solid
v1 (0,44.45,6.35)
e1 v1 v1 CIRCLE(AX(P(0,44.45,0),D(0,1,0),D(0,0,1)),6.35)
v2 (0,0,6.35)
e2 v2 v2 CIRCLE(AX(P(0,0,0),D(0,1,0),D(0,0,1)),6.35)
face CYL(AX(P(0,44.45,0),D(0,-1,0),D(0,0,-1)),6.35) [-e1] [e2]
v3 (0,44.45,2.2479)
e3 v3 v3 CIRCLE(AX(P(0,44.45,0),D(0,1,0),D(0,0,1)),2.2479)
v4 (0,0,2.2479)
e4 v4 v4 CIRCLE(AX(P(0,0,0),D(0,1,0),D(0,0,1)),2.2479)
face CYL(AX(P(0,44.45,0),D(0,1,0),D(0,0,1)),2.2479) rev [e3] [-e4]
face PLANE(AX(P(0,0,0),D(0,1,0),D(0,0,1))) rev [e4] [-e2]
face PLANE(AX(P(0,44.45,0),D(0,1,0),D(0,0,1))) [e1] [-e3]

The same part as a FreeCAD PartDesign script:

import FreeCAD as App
import Part
import Sketcher
from FreeCAD import Vector
Q = App.Units.Quantity

doc = App.newDocument("Part")
body = doc.addObject("PartDesign::Body", "Body")

sketch1 = body.newObject("Sketcher::SketchObject", "Sketch")
sketch1.AttachmentSupport = (doc.getObject("XZ_Plane"), [""])
sketch1.MapMode = "FlatFace"
sketch1.addGeometry(Part.Circle(Vector(0, 0, 0), Vector(0, 0, 1), 6), False)
sketch1.addConstraint([
    Sketcher.Constraint("Coincident", 0, 3, -1, 1),
    Sketcher.Constraint("Diameter", 0, Q("0.5 in")),
])
pad1 = body.newObject("PartDesign::Pad", "Pad")
pad1.Profile = sketch1
pad1.Length = Q("1.75 in")
pad1.Reversed = True

sketch2 = body.newObject("Sketcher::SketchObject", "Sketch001")
sketch2.AttachmentSupport = (doc.getObject("XZ_Plane"), [""])
sketch2.MapMode = "FlatFace"
sketch2.AttachmentOffset = App.Placement(Vector(0, 0, -1.75 * 25.4), App.Rotation())
sketch2.addGeometry(Part.Circle(Vector(0, 0, 0), Vector(0, 0, 1), 2.2), False)
sketch2.addConstraint([
    Sketcher.Constraint("Coincident", 0, 3, -1, 1),
    Sketcher.Constraint("Diameter", 0, Q("0.177 in")),
])
doc.recompute()
hole = body.newObject("PartDesign::Hole", "Hole")
hole.Profile = sketch2
hole.ThreadType = "None"
hole.Diameter = Q("0.177 in")
hole.DepthType = "ThroughAll"
hole.Reversed = True

doc.recompute()
